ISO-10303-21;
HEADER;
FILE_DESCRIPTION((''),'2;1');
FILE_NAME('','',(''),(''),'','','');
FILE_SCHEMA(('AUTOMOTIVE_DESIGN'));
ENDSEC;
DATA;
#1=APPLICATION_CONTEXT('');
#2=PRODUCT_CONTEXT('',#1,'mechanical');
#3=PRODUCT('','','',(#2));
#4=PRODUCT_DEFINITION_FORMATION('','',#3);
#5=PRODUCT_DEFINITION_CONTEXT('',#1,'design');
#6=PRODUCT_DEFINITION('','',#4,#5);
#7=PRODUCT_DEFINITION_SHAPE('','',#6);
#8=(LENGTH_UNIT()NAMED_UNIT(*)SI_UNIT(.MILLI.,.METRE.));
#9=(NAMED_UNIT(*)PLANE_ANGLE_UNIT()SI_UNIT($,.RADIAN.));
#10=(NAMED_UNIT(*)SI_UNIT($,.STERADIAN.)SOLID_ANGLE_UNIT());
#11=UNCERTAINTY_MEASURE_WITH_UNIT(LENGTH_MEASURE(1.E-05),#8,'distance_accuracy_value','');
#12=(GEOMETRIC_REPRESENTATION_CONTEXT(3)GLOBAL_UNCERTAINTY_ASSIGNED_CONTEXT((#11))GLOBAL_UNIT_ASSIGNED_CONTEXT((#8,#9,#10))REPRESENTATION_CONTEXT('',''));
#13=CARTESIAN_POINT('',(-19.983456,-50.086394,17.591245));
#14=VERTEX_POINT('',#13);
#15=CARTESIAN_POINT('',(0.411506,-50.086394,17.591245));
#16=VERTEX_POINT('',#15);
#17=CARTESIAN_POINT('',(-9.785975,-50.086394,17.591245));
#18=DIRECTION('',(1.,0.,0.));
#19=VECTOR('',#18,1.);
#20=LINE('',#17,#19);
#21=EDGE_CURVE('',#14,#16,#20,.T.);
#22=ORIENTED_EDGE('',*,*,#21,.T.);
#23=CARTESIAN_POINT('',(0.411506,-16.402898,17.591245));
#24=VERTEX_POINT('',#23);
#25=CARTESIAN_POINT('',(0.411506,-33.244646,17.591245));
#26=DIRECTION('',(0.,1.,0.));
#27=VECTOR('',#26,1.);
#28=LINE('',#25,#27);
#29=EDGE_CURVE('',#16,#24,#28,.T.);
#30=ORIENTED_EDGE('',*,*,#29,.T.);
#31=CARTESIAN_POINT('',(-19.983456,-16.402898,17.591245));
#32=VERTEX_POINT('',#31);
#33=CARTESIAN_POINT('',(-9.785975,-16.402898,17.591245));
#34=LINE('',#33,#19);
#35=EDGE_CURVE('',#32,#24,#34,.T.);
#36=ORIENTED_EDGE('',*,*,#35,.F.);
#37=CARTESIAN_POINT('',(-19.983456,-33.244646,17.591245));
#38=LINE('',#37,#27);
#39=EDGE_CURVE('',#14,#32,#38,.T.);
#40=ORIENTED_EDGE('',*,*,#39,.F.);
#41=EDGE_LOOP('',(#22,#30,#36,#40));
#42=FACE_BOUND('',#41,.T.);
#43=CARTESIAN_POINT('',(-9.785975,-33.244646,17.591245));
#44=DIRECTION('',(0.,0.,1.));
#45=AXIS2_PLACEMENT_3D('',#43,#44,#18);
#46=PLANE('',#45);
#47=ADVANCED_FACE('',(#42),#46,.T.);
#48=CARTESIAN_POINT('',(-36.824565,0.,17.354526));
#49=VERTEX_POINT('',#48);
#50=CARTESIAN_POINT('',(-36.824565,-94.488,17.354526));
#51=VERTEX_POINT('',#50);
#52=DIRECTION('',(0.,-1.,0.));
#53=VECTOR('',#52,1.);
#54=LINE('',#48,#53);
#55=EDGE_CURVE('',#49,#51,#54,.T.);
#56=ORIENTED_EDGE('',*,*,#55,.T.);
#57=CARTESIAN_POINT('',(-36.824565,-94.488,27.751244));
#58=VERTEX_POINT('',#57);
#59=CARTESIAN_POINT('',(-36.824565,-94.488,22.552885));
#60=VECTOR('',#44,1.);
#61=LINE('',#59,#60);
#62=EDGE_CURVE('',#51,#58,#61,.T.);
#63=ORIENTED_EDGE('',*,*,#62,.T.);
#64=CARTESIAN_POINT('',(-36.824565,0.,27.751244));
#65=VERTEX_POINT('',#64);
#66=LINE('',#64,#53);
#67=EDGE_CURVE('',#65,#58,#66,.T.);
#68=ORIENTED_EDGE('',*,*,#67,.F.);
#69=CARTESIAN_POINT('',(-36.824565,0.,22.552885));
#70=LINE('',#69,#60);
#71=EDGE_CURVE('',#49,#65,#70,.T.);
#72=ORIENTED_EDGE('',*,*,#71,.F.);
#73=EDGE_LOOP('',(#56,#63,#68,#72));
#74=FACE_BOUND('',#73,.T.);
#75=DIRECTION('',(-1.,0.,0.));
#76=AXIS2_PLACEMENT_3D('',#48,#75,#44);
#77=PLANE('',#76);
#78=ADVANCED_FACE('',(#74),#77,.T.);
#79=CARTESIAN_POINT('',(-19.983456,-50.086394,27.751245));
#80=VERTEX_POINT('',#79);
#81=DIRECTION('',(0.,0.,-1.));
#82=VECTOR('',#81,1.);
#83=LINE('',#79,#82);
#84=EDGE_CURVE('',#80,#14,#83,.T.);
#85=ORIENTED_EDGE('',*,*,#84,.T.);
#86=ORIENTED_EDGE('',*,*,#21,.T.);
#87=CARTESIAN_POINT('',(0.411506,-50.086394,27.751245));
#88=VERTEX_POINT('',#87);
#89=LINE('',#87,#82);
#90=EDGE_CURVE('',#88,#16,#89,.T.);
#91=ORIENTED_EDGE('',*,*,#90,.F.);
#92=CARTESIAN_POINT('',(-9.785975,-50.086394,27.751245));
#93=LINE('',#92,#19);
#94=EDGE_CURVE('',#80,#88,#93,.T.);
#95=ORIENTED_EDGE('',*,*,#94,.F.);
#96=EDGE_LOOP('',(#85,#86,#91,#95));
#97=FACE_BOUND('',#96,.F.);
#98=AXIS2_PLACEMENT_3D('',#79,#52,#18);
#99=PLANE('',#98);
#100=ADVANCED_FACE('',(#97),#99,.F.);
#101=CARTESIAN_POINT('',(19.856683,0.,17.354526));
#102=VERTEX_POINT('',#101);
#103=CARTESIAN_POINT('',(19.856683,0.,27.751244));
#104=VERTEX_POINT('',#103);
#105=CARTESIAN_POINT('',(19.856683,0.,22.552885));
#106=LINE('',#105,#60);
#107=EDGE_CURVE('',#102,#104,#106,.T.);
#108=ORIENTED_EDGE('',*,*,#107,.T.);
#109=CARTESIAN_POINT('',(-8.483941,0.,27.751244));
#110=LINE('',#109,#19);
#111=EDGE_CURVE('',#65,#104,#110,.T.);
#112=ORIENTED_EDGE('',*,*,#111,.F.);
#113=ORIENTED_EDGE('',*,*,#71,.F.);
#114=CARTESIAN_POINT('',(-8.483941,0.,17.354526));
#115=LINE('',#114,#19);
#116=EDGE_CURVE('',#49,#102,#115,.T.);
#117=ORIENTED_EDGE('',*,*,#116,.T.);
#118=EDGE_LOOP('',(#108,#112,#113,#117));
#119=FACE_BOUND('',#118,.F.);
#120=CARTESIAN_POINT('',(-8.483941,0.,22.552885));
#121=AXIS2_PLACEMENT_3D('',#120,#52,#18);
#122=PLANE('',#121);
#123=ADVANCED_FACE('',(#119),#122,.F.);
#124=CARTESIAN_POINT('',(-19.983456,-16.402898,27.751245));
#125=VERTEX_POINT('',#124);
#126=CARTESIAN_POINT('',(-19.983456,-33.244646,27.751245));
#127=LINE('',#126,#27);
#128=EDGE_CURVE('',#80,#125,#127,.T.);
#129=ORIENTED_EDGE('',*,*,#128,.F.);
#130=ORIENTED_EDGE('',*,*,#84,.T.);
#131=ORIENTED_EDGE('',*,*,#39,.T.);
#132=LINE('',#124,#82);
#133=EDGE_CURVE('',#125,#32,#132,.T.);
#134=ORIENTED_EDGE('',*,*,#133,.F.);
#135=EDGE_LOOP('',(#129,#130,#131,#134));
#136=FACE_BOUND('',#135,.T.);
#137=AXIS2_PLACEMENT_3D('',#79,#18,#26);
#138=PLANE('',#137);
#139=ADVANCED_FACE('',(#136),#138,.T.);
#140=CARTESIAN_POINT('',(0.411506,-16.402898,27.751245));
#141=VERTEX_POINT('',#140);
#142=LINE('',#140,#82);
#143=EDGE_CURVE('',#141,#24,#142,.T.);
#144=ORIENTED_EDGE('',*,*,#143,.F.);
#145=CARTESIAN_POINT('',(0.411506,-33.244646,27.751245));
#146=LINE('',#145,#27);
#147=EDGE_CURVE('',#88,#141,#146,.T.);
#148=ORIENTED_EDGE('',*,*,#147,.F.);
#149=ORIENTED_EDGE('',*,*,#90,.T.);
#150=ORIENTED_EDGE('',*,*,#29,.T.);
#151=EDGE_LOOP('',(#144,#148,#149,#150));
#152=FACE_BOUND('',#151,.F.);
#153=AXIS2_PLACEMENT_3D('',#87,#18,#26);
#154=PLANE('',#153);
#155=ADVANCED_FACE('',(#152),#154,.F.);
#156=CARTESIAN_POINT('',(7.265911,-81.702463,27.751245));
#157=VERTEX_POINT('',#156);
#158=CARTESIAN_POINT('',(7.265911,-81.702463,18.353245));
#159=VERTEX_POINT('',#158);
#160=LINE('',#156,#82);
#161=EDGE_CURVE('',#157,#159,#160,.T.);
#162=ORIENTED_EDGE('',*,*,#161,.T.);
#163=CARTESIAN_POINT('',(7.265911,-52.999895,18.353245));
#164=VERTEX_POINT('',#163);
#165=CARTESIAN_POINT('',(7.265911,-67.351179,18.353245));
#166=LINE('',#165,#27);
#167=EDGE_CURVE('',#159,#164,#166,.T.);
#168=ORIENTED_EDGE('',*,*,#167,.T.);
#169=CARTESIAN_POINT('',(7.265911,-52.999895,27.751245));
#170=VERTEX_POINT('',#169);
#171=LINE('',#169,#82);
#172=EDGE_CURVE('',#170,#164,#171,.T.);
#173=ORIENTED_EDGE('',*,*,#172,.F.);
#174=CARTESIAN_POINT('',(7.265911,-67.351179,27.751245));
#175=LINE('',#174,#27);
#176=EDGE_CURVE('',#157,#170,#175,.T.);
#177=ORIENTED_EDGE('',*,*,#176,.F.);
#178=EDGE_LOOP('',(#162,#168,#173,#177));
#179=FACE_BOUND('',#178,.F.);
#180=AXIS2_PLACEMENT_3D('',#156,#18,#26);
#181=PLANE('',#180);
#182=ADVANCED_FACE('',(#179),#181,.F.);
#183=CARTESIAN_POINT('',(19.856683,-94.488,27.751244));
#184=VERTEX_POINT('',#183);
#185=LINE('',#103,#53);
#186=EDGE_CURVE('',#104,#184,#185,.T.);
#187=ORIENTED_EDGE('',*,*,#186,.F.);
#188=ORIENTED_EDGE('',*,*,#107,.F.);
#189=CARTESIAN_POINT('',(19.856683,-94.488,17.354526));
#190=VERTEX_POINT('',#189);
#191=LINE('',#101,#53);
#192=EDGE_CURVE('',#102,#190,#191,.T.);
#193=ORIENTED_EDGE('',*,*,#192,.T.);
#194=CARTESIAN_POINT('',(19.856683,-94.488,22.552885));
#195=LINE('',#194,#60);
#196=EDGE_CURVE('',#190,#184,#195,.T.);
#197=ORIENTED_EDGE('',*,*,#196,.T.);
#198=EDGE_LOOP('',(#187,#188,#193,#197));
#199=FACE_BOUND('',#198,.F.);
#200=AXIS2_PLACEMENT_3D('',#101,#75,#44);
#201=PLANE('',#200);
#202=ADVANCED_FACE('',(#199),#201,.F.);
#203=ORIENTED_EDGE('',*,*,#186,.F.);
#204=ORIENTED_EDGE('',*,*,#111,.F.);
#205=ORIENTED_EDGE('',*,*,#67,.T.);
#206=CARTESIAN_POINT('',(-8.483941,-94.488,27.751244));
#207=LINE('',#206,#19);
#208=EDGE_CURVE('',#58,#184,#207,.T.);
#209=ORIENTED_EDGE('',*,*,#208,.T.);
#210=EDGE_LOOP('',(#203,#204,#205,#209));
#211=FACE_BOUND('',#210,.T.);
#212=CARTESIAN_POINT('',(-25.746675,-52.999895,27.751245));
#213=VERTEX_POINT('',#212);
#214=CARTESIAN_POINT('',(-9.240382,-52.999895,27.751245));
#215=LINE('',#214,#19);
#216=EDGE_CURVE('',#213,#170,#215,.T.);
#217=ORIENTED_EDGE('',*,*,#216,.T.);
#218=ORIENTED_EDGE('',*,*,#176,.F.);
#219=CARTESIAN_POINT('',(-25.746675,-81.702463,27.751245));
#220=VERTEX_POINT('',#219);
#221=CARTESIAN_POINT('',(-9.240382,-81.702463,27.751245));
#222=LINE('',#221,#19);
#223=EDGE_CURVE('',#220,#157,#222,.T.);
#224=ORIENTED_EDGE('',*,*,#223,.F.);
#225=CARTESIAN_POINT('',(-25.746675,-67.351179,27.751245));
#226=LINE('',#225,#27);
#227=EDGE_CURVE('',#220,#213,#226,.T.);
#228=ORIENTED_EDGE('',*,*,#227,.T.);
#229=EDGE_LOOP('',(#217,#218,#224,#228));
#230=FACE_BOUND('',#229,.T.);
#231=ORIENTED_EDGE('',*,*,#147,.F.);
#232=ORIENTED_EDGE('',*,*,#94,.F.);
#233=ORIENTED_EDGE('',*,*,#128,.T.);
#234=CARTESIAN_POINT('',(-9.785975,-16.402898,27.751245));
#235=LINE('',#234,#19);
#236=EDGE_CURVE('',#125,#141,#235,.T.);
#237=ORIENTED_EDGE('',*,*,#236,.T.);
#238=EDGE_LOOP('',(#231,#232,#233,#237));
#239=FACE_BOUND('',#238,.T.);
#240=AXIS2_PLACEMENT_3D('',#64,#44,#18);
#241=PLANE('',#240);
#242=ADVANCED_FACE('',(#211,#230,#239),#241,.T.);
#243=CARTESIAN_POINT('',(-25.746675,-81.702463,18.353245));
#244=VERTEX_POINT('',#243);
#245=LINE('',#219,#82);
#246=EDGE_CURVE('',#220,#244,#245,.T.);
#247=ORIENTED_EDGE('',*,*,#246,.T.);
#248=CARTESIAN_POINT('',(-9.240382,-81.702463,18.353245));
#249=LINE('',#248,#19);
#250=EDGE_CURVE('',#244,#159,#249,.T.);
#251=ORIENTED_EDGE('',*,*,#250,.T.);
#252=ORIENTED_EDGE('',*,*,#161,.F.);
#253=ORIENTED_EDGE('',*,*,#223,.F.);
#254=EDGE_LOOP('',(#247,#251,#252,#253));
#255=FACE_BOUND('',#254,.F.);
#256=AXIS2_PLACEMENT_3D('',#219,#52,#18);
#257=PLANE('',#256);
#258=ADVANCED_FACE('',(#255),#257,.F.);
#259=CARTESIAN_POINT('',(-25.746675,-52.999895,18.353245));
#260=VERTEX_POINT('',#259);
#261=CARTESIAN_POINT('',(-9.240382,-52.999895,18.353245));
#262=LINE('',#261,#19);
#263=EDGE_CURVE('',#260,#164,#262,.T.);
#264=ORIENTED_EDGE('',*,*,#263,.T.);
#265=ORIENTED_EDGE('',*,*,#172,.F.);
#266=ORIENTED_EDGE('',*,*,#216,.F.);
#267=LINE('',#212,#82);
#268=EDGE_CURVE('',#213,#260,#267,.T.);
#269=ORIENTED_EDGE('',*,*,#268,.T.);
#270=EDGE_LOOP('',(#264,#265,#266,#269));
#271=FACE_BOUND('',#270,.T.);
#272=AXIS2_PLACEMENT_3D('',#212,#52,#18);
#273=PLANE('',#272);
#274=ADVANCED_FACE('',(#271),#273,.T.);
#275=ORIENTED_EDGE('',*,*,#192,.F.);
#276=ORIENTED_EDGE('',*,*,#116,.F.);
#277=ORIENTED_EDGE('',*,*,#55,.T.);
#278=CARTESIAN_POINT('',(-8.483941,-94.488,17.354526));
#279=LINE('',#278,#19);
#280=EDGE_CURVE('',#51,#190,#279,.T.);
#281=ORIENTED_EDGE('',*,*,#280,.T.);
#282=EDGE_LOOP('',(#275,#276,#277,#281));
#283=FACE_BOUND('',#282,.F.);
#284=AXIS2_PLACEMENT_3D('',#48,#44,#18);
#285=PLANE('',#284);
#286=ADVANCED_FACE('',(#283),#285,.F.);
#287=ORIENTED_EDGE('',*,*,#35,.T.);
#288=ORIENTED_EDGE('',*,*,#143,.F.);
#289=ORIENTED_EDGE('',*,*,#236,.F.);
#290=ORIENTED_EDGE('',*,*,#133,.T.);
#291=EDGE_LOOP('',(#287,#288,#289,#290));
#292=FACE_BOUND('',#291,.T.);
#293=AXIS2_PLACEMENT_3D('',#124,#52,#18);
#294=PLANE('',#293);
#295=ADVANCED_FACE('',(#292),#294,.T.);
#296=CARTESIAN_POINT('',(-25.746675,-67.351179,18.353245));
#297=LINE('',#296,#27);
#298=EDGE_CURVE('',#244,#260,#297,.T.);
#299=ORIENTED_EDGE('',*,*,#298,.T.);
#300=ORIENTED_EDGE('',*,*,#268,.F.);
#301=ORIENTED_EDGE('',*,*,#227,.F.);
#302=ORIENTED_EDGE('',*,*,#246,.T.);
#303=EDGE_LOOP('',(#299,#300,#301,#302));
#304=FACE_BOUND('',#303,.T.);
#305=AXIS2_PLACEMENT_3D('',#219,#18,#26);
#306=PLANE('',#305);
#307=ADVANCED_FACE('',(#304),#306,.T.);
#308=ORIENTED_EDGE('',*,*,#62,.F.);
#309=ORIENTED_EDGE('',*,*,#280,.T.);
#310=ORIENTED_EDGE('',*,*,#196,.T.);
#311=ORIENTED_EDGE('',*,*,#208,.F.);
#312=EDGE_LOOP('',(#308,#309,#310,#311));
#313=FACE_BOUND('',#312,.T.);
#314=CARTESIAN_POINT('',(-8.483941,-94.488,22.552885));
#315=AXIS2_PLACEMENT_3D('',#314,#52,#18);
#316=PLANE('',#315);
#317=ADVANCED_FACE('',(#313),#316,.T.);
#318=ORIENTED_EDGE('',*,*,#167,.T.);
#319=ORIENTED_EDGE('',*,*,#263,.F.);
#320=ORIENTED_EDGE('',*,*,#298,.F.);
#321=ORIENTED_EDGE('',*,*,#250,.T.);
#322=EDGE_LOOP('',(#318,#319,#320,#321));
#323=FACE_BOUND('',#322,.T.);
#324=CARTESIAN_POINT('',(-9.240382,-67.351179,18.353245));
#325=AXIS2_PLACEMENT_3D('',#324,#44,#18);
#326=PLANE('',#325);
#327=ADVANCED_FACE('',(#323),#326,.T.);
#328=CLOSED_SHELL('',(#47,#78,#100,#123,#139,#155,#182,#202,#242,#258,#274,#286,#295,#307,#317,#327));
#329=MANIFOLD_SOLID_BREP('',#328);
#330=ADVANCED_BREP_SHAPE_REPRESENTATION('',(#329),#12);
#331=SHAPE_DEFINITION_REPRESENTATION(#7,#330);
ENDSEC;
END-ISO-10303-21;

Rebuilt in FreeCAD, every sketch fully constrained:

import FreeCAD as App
import Part
import Sketcher
from FreeCAD import Vector
Q = App.Units.Quantity

doc = App.newDocument("Part")
body = doc.addObject("PartDesign::Body", "Body")

# Sketch on XZ plane
sketch1 = body.newObject("Sketcher::SketchObject", "Sketch")
sketch1.AttachmentSupport = (doc.getObject("XZ_Plane"), [""])
sketch1.MapMode = "FlatFace"
sketch1.addGeometry(Part.LineSegment(Vector(-37, 28, 0), Vector(-37, 17, 0)), False)
sketch1.addGeometry(Part.LineSegment(Vector(-37, 17, 0), Vector(20, 17, 0)), False)
sketch1.addGeometry(Part.LineSegment(Vector(20, 17, 0), Vector(20, 28, 0)), False)
sketch1.addGeometry(Part.LineSegment(Vector(20, 28, 0), Vector(-37, 28, 0)), False)
sketch1.addConstraint(Sketcher.Constraint("Coincident", 0, 2, 1, 1))
sketch1.addConstraint(Sketcher.Constraint("Coincident", 1, 2, 2, 1))
sketch1.addConstraint(Sketcher.Constraint("Coincident", 2, 2, 3, 1))
sketch1.addConstraint(Sketcher.Constraint("Coincident", 3, 2, 0, 1))
sketch1.addConstraint(Sketcher.Constraint("Vertical", 0))
sketch1.addConstraint(Sketcher.Constraint("Horizontal", 1))
sketch1.addConstraint(Sketcher.Constraint("Vertical", 2))
sketch1.addConstraint(Sketcher.Constraint("Horizontal", 3))
sketch1.addConstraint(Sketcher.Constraint("DistanceX", 1, 1, 1, 2, Q("56.681249 mm")))
sketch1.addConstraint(Sketcher.Constraint("DistanceY", 0, 2, 0, 1, Q("10.396719 mm")))
sketch1.addConstraint(Sketcher.Constraint("DistanceX", 0, 2, -1, 1, Q("36.824565 mm")))
sketch1.addConstraint(Sketcher.Constraint("DistanceY", -1, 1, 0, 2, Q("17.354526 mm")))
pad1 = body.newObject("PartDesign::Pad", "Pad")
pad1.Profile = sketch1
pad1.Length = Q("3.72 in")

# Sketch on XY plane
sketch2 = body.newObject("Sketcher::SketchObject", "Sketch001")
sketch2.AttachmentSupport = (doc.getObject("XY_Plane"), [""])
sketch2.MapMode = "FlatFace"
sketch2.AttachmentOffset = App.Placement(Vector(0, 0, 27.751245), App.Rotation())
sketch2.addGeometry(Part.LineSegment(Vector(-25, -2, 0), Vector(-25, -34, 0)), False)
sketch2.addGeometry(Part.LineSegment(Vector(-25, -34, 0), Vector(7, -34, 0)), False)
sketch2.addGeometry(Part.LineSegment(Vector(7, -34, 0), Vector(7, -2, 0)), False)
sketch2.addGeometry(Part.LineSegment(Vector(7, -2, 0), Vector(-25, -2, 0)), False)
sketch2.addConstraint(Sketcher.Constraint("Coincident", 0, 2, 1, 1))
sketch2.addConstraint(Sketcher.Constraint("Coincident", 1, 2, 2, 1))
sketch2.addConstraint(Sketcher.Constraint("Coincident", 2, 2, 3, 1))
sketch2.addConstraint(Sketcher.Constraint("Coincident", 3, 2, 0, 1))
sketch2.addConstraint(Sketcher.Constraint("Vertical", 0))
sketch2.addConstraint(Sketcher.Constraint("Horizontal", 1))
sketch2.addConstraint(Sketcher.Constraint("Vertical", 2))
sketch2.addConstraint(Sketcher.Constraint("Horizontal", 3))
sketch2.addConstraint(Sketcher.Constraint("DistanceX", 1, 1, 1, 2, Q("31.195983 mm")))
sketch2.addConstraint(Sketcher.Constraint("DistanceY", 0, 2, 0, 1, Q("31.680895 mm")))
sketch2.addConstraint(Sketcher.Constraint("DistanceY", 2, 2, -1, 1, Q("1.877069 mm")))
sketch2.addConstraint(Sketcher.Constraint("DistanceX", 0, 2, -1, 1, Q("24.691147 mm")))
pad2 = body.newObject("PartDesign::Pad", "Pad001")
pad2.Profile = sketch2
pad2.Length = Q("0.1 in")
pad2.Reversed = True

# Sketch on XY plane
sketch3 = body.newObject("Sketcher::SketchObject", "Sketch002")
sketch3.AttachmentSupport = (doc.getObject("XY_Plane"), [""])
sketch3.MapMode = "FlatFace"
sketch3.AttachmentOffset = App.Placement(Vector(0, 0, 27.751245), App.Rotation())
sketch3.addGeometry(Part.LineSegment(Vector(-20, -16, 0), Vector(-20, -50, 0)), False)
sketch3.addGeometry(Part.LineSegment(Vector(-20, -50, 0), Vector(0, -50, 0)), False)
sketch3.addGeometry(Part.LineSegment(Vector(0, -50, 0), Vector(0, -16, 0)), False)
sketch3.addGeometry(Part.LineSegment(Vector(0, -16, 0), Vector(-20, -16, 0)), False)
sketch3.addConstraint(Sketcher.Constraint("Coincident", 0, 2, 1, 1))
sketch3.addConstraint(Sketcher.Constraint("Coincident", 1, 2, 2, 1))
sketch3.addConstraint(Sketcher.Constraint("Coincident", 2, 2, 3, 1))
sketch3.addConstraint(Sketcher.Constraint("Coincident", 3, 2, 0, 1))
sketch3.addConstraint(Sketcher.Constraint("Vertical", 0))
sketch3.addConstraint(Sketcher.Constraint("Horizontal", 1))
sketch3.addConstraint(Sketcher.Constraint("Vertical", 2))
sketch3.addConstraint(Sketcher.Constraint("Horizontal", 3))
sketch3.addConstraint(Sketcher.Constraint("DistanceY", 2, 2, -1, 1, Q("16.402898 mm")))
sketch3.addConstraint(Sketcher.Constraint("DistanceX", 1, 1, 1, 2, Q("20.394963 mm")))
sketch3.addConstraint(Sketcher.Constraint("DistanceY", 0, 2, 0, 1, Q("33.683496 mm")))
sketch3.addConstraint(Sketcher.Constraint("DistanceX", 0, 2, -1, 1, Q("19.983456 mm")))
pocket1 = body.newObject("PartDesign::Pocket", "Pocket")
pocket1.Profile = sketch3
pocket1.Length = Q("0.4 in")

# Sketch on XY plane
sketch4 = body.newObject("Sketcher::SketchObject", "Sketch003")
sketch4.AttachmentSupport = (doc.getObject("XY_Plane"), [""])
sketch4.MapMode = "FlatFace"
sketch4.AttachmentOffset = App.Placement(Vector(0, 0, 27.751245), App.Rotation())
sketch4.addGeometry(Part.LineSegment(Vector(-26, -53, 0), Vector(-26, -82, 0)), False)
sketch4.addGeometry(Part.LineSegment(Vector(-26, -82, 0), Vector(7, -82, 0)), False)
sketch4.addGeometry(Part.LineSegment(Vector(7, -82, 0), Vector(7, -53, 0)), False)
sketch4.addGeometry(Part.LineSegment(Vector(7, -53, 0), Vector(-26, -53, 0)), False)
sketch4.addConstraint(Sketcher.Constraint("Coincident", 0, 2, 1, 1))
sketch4.addConstraint(Sketcher.Constraint("Coincident", 1, 2, 2, 1))
sketch4.addConstraint(Sketcher.Constraint("Coincident", 2, 2, 3, 1))
sketch4.addConstraint(Sketcher.Constraint("Coincident", 3, 2, 0, 1))
sketch4.addConstraint(Sketcher.Constraint("Vertical", 0))
sketch4.addConstraint(Sketcher.Constraint("Horizontal", 1))
sketch4.addConstraint(Sketcher.Constraint("Vertical", 2))
sketch4.addConstraint(Sketcher.Constraint("Horizontal", 3))
sketch4.addConstraint(Sketcher.Constraint("DistanceX", 1, 1, 1, 2, Q("33.012585 mm")))
sketch4.addConstraint(Sketcher.Constraint("DistanceY", 0, 2, 0, 1, Q("28.702568 mm")))
sketch4.addConstraint(Sketcher.Constraint("DistanceX", -1, 1, 1, 2, Q("7.265911 mm")))
sketch4.addConstraint(Sketcher.Constraint("DistanceY", 0, 2, -1, 1, Q("81.702463 mm")))
pocket2 = body.newObject("PartDesign::Pocket", "Pocket001")
pocket2.Profile = sketch4
pocket2.Length = Q("0.37 in")

doc.recompute()
